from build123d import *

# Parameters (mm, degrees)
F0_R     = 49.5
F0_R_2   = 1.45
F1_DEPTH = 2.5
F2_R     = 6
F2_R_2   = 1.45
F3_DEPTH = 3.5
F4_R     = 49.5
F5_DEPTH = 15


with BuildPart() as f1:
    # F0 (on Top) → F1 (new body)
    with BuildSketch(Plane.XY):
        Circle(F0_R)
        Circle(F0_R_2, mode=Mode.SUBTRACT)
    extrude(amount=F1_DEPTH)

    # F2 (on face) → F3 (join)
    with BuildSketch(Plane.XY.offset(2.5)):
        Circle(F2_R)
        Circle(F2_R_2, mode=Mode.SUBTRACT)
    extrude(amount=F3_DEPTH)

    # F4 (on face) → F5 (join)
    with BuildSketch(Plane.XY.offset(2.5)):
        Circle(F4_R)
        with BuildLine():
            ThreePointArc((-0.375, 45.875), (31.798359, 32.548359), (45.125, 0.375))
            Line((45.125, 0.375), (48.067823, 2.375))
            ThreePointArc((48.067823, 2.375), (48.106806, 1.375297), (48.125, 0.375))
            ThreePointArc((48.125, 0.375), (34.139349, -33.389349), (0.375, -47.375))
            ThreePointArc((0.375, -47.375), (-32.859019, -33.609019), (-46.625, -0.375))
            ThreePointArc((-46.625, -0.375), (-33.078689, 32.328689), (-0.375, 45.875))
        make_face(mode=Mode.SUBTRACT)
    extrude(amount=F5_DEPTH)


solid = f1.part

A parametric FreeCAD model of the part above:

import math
import FreeCAD as App
import Part
import Sketcher

doc = App.newDocument("Part")
body = doc.addObject("PartDesign::Body", "Body")

sketch1 = body.newObject("Sketcher::SketchObject", "Sketch")
sketch1.AttachmentSupport = (doc.getObject("XY_Plane"), [""])
sketch1.MapMode = "FlatFace"
sketch1.addGeometry([
    Part.Circle(App.Vector(0, 0, 0), App.Vector(0, 0, 1), 49.5),
    Part.Circle(App.Vector(0, 0, 0), App.Vector(0, 0, 1), 1.45),
], False)
sketch1.addConstraint([
    Sketcher.Constraint("Coincident", 0, 3, -1, 1),
    Sketcher.Constraint("Coincident", 1, 3, -1, 1),
    Sketcher.Constraint("Diameter", 0, 99.0),
    Sketcher.Constraint("Diameter", 1, 2.9),
])
pad1 = body.newObject("PartDesign::Pad", "Pad")
pad1.Profile = sketch1
pad1.Length = 2.5

sketch2 = body.newObject("Sketcher::SketchObject", "Sketch001")
sketch2.AttachmentSupport = (doc.getObject("XY_Plane"), [""])
sketch2.MapMode = "FlatFace"
sketch2.AttachmentOffset = App.Placement(App.Vector(0, 0, 2.5), App.Rotation())
sketch2.addGeometry([
    Part.Circle(App.Vector(0, 0, 0), App.Vector(0, 0, 1), 6),
    Part.Circle(App.Vector(0, 0, 0), App.Vector(0, 0, 1), 1.45),
], False)
sketch2.addConstraint([
    Sketcher.Constraint("Coincident", 0, 3, -1, 1),
    Sketcher.Constraint("Coincident", 1, 3, -1, 1),
    Sketcher.Constraint("Diameter", 0, 12.0),
    Sketcher.Constraint("Diameter", 1, 2.9),
])
pad2 = body.newObject("PartDesign::Pad", "Pad001")
pad2.Profile = sketch2
pad2.Length = 3.5

sketch3 = body.newObject("Sketcher::SketchObject", "Sketch002")
sketch3.AttachmentSupport = (doc.getObject("XY_Plane"), [""])
sketch3.MapMode = "FlatFace"
sketch3.AttachmentOffset = App.Placement(App.Vector(0, 0, 2.5), App.Rotation())
sketch3.addGeometry([
    Part.Circle(App.Vector(0, 0, 0), App.Vector(0, 0, 1), 49.5),
    Part.ArcOfCircle(Part.Circle(App.Vector(-0.375001, -0.374999, 0), App.Vector(0, 0, 1), 46.249999), math.radians(89.999998), math.radians(180.000002)),
    Part.ArcOfCircle(Part.Circle(App.Vector(-0.374998, 0.375002, 0), App.Vector(0, 0, 1), 45.499998), math.radians(-0.000002), math.radians(90.000002)),
    Part.LineSegment(App.Vector(45.125, 0.375, 0), App.Vector(48.067823, 2.375, 0)),
    Part.ArcOfCircle(Part.Circle(App.Vector(-0.000775, -0.000026, 0), App.Vector(0, 0, 1), 48.127236), math.radians(0.446476), math.radians(2.828633)),
    Part.ArcOfCircle(Part.Circle(App.Vector(0.375001, 0.374999, 0), App.Vector(0, 0, 1), 47.749999), math.radians(-90.000001), math.radians(0.000001)),
    Part.ArcOfCircle(Part.Circle(App.Vector(0.374999, -0.375001, 0), App.Vector(0, 0, 1), 46.999999), math.radians(179.999999), math.radians(270.000001)),
], False)
sketch3.addConstraint([
    Sketcher.Constraint("Coincident", 1, 1, 2, 2),
    Sketcher.Constraint("Coincident", 2, 1, 3, 1),
    Sketcher.Constraint("Coincident", 3, 2, 4, 2),
    Sketcher.Constraint("Coincident", 4, 1, 5, 2),
    Sketcher.Constraint("Coincident", 5, 1, 6, 2),
    Sketcher.Constraint("Coincident", 6, 1, 1, 2),
    Sketcher.Constraint("Coincident", 0, 3, -1, 1),
    Sketcher.Constraint("Diameter", 0, 99.0),
    Sketcher.Constraint("Radius", 6, 46.999999),
    Sketcher.Constraint("Radius", 2, 45.499998),
    Sketcher.Constraint("Radius", 1, 46.249999),
    Sketcher.Constraint("Radius", 5, 47.749999),
    Sketcher.Constraint("DistanceY", 2, 1, 3, 2, 2.0),
    Sketcher.Constraint("DistanceY", 5, 3, 3, 2, 2.000001),
    Sketcher.Constraint("DistanceY", 4, 1, 3, 2, 2.0),
    Sketcher.Constraint("DistanceX", 2, 1, 4, 1, 3.0),
    Sketcher.Constraint("DistanceY", 5, 1, 1, 3, 47.000001),
    Sketcher.Constraint("DistanceX", 1, 3, 5, 3, 0.750002),
    Sketcher.Constraint("DistanceX", 1, 1, 5, 3, 0.750001),
    Sketcher.Constraint("DistanceX", 1, 3, 5, 1, 0.750001),
    Sketcher.Constraint("DistanceY", 6, 1, 2, 3, 0.750002),
    Sketcher.Constraint("DistanceX", 1, 3, -1, 1, 0.375001),
    Sketcher.Constraint("DistanceY", 1, 3, -1, 1, 0.374999),
    Sketcher.Constraint("Radius", 4, 48.127236),
    Sketcher.Constraint("Distance", 3, 3.558118),
])
pad3 = body.newObject("PartDesign::Pad", "Pad002")
pad3.Profile = sketch3
pad3.Length = 15

doc.recompute()
